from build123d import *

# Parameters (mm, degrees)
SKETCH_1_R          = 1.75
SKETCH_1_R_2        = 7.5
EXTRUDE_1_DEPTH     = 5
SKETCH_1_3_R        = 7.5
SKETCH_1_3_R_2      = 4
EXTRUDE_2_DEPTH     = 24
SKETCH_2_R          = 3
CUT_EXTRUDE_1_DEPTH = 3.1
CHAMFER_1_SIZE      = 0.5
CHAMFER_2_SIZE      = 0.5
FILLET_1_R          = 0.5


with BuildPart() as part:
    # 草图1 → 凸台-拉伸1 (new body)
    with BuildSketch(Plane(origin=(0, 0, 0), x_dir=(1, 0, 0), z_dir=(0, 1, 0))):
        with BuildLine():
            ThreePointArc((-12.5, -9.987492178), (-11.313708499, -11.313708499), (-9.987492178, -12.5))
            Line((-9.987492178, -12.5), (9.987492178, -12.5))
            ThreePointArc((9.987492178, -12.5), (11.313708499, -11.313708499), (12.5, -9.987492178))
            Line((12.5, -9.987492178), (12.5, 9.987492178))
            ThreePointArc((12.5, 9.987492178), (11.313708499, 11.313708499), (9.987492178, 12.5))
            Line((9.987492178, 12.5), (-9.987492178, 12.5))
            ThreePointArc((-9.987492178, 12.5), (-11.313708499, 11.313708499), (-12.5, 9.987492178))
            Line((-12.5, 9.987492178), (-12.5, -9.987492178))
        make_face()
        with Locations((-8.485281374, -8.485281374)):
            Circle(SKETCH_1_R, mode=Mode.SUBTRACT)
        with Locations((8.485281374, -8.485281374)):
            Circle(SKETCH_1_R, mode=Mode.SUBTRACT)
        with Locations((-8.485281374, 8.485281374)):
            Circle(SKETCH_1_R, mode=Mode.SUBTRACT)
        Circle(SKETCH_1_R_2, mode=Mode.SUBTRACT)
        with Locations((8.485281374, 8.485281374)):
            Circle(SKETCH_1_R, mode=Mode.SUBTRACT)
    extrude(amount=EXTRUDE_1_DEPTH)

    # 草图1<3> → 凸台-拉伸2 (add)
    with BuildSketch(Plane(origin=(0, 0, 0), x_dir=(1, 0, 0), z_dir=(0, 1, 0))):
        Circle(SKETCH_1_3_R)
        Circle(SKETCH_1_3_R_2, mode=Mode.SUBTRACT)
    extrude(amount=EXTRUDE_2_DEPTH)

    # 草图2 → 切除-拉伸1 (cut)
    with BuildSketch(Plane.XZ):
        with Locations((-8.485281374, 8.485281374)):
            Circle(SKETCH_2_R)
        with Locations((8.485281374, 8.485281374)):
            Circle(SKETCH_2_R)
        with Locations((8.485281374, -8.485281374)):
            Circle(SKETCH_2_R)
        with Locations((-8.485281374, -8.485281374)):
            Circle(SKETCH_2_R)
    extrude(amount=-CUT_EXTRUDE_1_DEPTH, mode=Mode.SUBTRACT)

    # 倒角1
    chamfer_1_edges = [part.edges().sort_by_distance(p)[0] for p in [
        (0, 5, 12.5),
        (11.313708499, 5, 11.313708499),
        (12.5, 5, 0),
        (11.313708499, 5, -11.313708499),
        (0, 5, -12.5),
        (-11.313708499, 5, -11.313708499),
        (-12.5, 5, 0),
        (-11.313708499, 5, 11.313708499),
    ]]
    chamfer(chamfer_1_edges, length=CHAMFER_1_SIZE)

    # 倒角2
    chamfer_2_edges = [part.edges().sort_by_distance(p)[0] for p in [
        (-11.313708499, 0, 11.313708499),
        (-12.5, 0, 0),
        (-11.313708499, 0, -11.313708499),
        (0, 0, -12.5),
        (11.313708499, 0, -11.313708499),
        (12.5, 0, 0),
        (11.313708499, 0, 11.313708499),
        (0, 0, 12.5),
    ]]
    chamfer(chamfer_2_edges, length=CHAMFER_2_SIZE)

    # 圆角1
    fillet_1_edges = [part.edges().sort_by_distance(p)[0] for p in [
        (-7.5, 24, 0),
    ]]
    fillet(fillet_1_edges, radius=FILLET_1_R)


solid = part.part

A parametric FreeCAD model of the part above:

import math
import FreeCAD as App
import Part
import Sketcher


def edges_at(feature, points):
    """Names of the edges that pass closest to the given points."""
    edges = feature.Shape.Edges
    near = lambda p: min(range(len(edges)), key=lambda i: edges[i].distToShape(Part.Vertex(*p))[0])
    return sorted({f"Edge{near(p) + 1}" for p in points})

doc = App.newDocument("Part")
body = doc.addObject("PartDesign::Body", "Body")

# Sketch on XZ plane
sketch1 = doc.addObject("Sketcher::SketchObject", "Sketch")
body.addObject(sketch1)
sketch1.AttachmentSupport = (doc.XZ_Plane, [""])
sketch1.MapMode = "FlatFace"
sketch1.addGeometry(Part.ArcOfCircle(Part.Circle(App.Vector(0, 0, 0), App.Vector(0, 0, 1), 16), math.radians(128.62), math.radians(141.38)), False)
sketch1.addGeometry(Part.LineSegment(App.Vector(-10, 12.5, 0), App.Vector(10, 12.5, 0)), False)
sketch1.addGeometry(Part.ArcOfCircle(Part.Circle(App.Vector(0, 0, 0), App.Vector(0, 0, 1), 16), math.radians(38.62), math.radians(51.38)), False)
sketch1.addGeometry(Part.LineSegment(App.Vector(12.5, 10, 0), App.Vector(12.5, -10, 0)), False)
sketch1.addGeometry(Part.ArcOfCircle(Part.Circle(App.Vector(0, 0, 0), App.Vector(0, 0, 1), 16), math.radians(-51.38), math.radians(-38.62)), False)
sketch1.addGeometry(Part.LineSegment(App.Vector(10, -12.5, 0), App.Vector(-10, -12.5, 0)), False)
sketch1.addGeometry(Part.ArcOfCircle(Part.Circle(App.Vector(0, 0, 0), App.Vector(0, 0, 1), 16), math.radians(-141.38), math.radians(-128.62)), False)
sketch1.addGeometry(Part.LineSegment(App.Vector(-12.5, -10, 0), App.Vector(-12.5, 10, 0)), False)
sketch1.addGeometry(Part.Circle(App.Vector(-8.5, 8.5, 0), App.Vector(0, 0, 1), 1.8), False)
sketch1.addGeometry(Part.Circle(App.Vector(0, 0, 0), App.Vector(0, 0, 1), 7.5), False)
sketch1.addGeometry(Part.Circle(App.Vector(8.5, 8.5, 0), App.Vector(0, 0, 1), 1.8), False)
sketch1.addGeometry(Part.Circle(App.Vector(-8.5, -8.5, 0), App.Vector(0, 0, 1), 1.8), False)
sketch1.addGeometry(Part.Circle(App.Vector(8.5, -8.5, 0), App.Vector(0, 0, 1), 1.8), False)
sketch1.addConstraint(Sketcher.Constraint("Coincident", 0, 1, 1, 1))
sketch1.addConstraint(Sketcher.Constraint("Coincident", 1, 2, 2, 2))
sketch1.addConstraint(Sketcher.Constraint("Coincident", 2, 1, 3, 1))
sketch1.addConstraint(Sketcher.Constraint("Coincident", 3, 2, 4, 2))
sketch1.addConstraint(Sketcher.Constraint("Coincident", 4, 1, 5, 1))
sketch1.addConstraint(Sketcher.Constraint("Coincident", 5, 2, 6, 2))
sketch1.addConstraint(Sketcher.Constraint("Coincident", 6, 1, 7, 1))
sketch1.addConstraint(Sketcher.Constraint("Coincident", 7, 2, 0, 2))
sketch1.addConstraint(Sketcher.Constraint("Horizontal", 1))
sketch1.addConstraint(Sketcher.Constraint("Vertical", 3))
sketch1.addConstraint(Sketcher.Constraint("Horizontal", 5))
sketch1.addConstraint(Sketcher.Constraint("Vertical", 7))
sketch1.addConstraint(Sketcher.Constraint("Coincident", 0, 3, -1, 1))
sketch1.addConstraint(Sketcher.Constraint("Coincident", 2, 3, -1, 1))
sketch1.addConstraint(Sketcher.Constraint("Coincident", 4, 3, -1, 1))
sketch1.addConstraint(Sketcher.Constraint("Coincident", 6, 3, -1, 1))
sketch1.addConstraint(Sketcher.Constraint("Coincident", 9, 3, -1, 1))
sketch1.addConstraint(Sketcher.Constraint("Equal", 0, 2))
sketch1.addConstraint(Sketcher.Constraint("Equal", 2, 4))
sketch1.addConstraint(Sketcher.Constraint("Equal", 4, 6))
sketch1.addConstraint(Sketcher.Constraint("Equal", 8, 10))
sketch1.addConstraint(Sketcher.Constraint("Equal", 10, 11))
sketch1.addConstraint(Sketcher.Constraint("Equal", 11, 12))
sketch1.addConstraint(Sketcher.Constraint("Symmetric", 10, 3, 11, 3, -1, 1))
sketch1.addConstraint(Sketcher.Constraint("Symmetric", 8, 3, 12, 3, -1, 1))
sketch1.addConstraint(Sketcher.Constraint("Symmetric", 8, 3, 10, 3, -2))
sketch1.addConstraint(Sketcher.Constraint("Horizontal", 3, 2, 6, 1))
sketch1.addConstraint(Sketcher.Constraint("Vertical", 1, 2, 4, 1))
sketch1.addConstraint(Sketcher.Constraint("Equal", 5, 3))
sketch1.addConstraint(Sketcher.Constraint("Diameter", 9, 15.0))
sketch1.addConstraint(Sketcher.Constraint("Radius", 0, 16.0))
sketch1.addConstraint(Sketcher.Constraint("Diameter", 8, 3.5))
sketch1.addConstraint(Sketcher.Constraint("DistanceY", -1, 1, 0, 1, 12.5))
sketch1.addConstraint(Sketcher.Constraint("DistanceX", 8, 3, -1, 1, 8.485281))
sketch1.addConstraint(Sketcher.Constraint("DistanceY", -1, 1, 8, 3, 8.485281))
pad1 = doc.addObject("PartDesign::Pad", "Pad")
body.addObject(pad1)
pad1.Profile = sketch1
pad1.Length = 5
pad1.Reversed = True

# Sketch on XZ plane
sketch2 = doc.addObject("Sketcher::SketchObject", "Sketch001")
body.addObject(sketch2)
sketch2.AttachmentSupport = (doc.XZ_Plane, [""])
sketch2.MapMode = "FlatFace"
sketch2.addGeometry(Part.Circle(App.Vector(0, 0, 0), App.Vector(0, 0, 1), 7.5), False)
sketch2.addGeometry(Part.Circle(App.Vector(0, 0, 0), App.Vector(0, 0, 1), 4), False)
sketch2.addConstraint(Sketcher.Constraint("Coincident", 0, 3, -1, 1))
sketch2.addConstraint(Sketcher.Constraint("Coincident", 1, 3, -1, 1))
sketch2.addConstraint(Sketcher.Constraint("Diameter", 0, 15.0))
sketch2.addConstraint(Sketcher.Constraint("Diameter", 1, 8.0))
pad2 = doc.addObject("PartDesign::Pad", "Pad001")
body.addObject(pad2)
pad2.Profile = sketch2
pad2.Length = 24
pad2.Reversed = True

# Sketch on XZ plane
sketch3 = doc.addObject("Sketcher::SketchObject", "Sketch002")
body.addObject(sketch3)
sketch3.AttachmentSupport = (doc.XZ_Plane, [""])
sketch3.MapMode = "FlatFace"
sketch3.addGeometry(Part.Circle(App.Vector(-8.5, 8.5, 0), App.Vector(0, 0, 1), 3), False)
sketch3.addGeometry(Part.Circle(App.Vector(8.5, 8.5, 0), App.Vector(0, 0, 1), 3), False)
sketch3.addGeometry(Part.Circle(App.Vector(8.5, -8.5, 0), App.Vector(0, 0, 1), 3), False)
sketch3.addGeometry(Part.Circle(App.Vector(-8.5, -8.5, 0), App.Vector(0, 0, 1), 3), False)
sketch3.addConstraint(Sketcher.Constraint("Equal", 0, 1))
sketch3.addConstraint(Sketcher.Constraint("Equal", 1, 2))
sketch3.addConstraint(Sketcher.Constraint("Equal", 2, 3))
sketch3.addConstraint(Sketcher.Constraint("Symmetric", 0, 3, 2, 3, -1, 1))
sketch3.addConstraint(Sketcher.Constraint("Symmetric", 1, 3, 3, 3, -1, 1))
sketch3.addConstraint(Sketcher.Constraint("Symmetric", 0, 3, 1, 3, -2))
sketch3.addConstraint(Sketcher.Constraint("Diameter", 0, 6.0))
sketch3.addConstraint(Sketcher.Constraint("DistanceX", 0, 3, -1, 1, 8.485281))
sketch3.addConstraint(Sketcher.Constraint("DistanceY", -1, 1, 0, 3, 8.485281))
pocket1 = doc.addObject("PartDesign::Pocket", "Pocket")
body.addObject(pocket1)
pocket1.Profile = sketch3
pocket1.Length = 3.1
doc.recompute()

chamfer = doc.addObject("PartDesign::Chamfer", "Chamfer")
body.addObject(chamfer)
chamfer.Base = (pocket1, edges_at(pocket1, [
    (0, 5, 12.5),
    (11.314, 5, 11.314),
    (12.5, 5, 0),
    (11.314, 5, -11.314),
    (0, 5, -12.5),
    (-11.314, 5, -11.314),
    (-12.5, 5, 0),
    (-11.314, 5, 11.314),
]))
chamfer.Size = 0.5
doc.recompute()

chamfer2 = doc.addObject("PartDesign::Chamfer", "Chamfer001")
body.addObject(chamfer2)
chamfer2.Base = (chamfer, edges_at(chamfer, [
    (-11.314, 0, 11.314),
    (-12.5, 0, 0),
    (-11.314, 0, -11.314),
    (0, 0, -12.5),
    (11.314, 0, -11.314),
    (12.5, 0, 0),
    (11.314, 0, 11.314),
    (0, 0, 12.5),
]))
chamfer2.Size = 0.5
doc.recompute()

fillet = doc.addObject("PartDesign::Fillet", "Fillet")
body.addObject(fillet)
fillet.Base = (chamfer2, edges_at(chamfer2, [(-7.5, 24, 0)]))
fillet.Radius = 0.5

doc.recompute()
